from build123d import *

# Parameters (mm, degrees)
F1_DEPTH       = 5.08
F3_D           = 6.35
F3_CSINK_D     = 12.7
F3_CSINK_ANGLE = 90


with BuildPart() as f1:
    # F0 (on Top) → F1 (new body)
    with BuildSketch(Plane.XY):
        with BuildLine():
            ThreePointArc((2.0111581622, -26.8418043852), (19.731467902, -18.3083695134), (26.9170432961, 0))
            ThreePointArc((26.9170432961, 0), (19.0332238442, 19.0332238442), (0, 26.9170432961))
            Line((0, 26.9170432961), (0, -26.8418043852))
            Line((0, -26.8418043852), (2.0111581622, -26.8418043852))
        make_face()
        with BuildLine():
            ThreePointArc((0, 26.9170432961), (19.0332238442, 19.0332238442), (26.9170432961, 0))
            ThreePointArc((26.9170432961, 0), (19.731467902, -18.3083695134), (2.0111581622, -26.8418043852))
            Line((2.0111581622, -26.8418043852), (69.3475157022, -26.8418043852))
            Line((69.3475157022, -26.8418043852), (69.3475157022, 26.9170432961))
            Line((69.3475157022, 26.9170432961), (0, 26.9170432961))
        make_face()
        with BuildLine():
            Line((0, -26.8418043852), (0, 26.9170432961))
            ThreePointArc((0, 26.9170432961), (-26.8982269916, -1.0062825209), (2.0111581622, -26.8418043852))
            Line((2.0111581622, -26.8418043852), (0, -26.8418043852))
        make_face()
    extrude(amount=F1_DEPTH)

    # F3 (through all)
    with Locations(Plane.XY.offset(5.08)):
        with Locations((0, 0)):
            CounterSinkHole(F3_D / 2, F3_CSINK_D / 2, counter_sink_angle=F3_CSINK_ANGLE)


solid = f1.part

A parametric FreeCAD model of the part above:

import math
import FreeCAD as App
import Part
import Sketcher
Q = App.Units.Quantity

doc = App.newDocument("Part")
params = doc.addObject("Spreadsheet::Sheet", "Params")
for row, (alias, value) in enumerate([
    ("pad1_length", "0.2 in"),
    ("sketch2_diameter", "0.25 in"),
    ("hole_diameter", "0.25 in"),
    ("hole_csink_diameter", "0.5 in"),
], start=1):
    params.set(f"A{row}", alias)
    params.set(f"B{row}", "=" + value)
    params.setAlias(f"B{row}", alias)

body = doc.addObject("PartDesign::Body", "Body")

# Sketch on XY plane
sketch1 = body.newObject("Sketcher::SketchObject", "Sketch")
sketch1.AttachmentSupport = (doc.getObject("XY_Plane"), [""])
sketch1.MapMode = "FlatFace"
sketch1.addGeometry([
    Part.LineSegment(App.Vector(2, -27, 0), App.Vector(69, -27, 0)),
    Part.LineSegment(App.Vector(69, -27, 0), App.Vector(69, 27, 0)),
    Part.LineSegment(App.Vector(69, 27, 0), App.Vector(0, 27, 0)),
    Part.ArcOfCircle(Part.Circle(App.Vector(0, 0, 0), App.Vector(0, 0, 1), 27), math.radians(90), math.radians(274)),
], False)
sketch1.addConstraint([
    Sketcher.Constraint("Coincident", 0, 2, 1, 1),
    Sketcher.Constraint("Coincident", 1, 2, 2, 1),
    Sketcher.Constraint("Tangent", 2, 2, 3, 1),
    Sketcher.Constraint("Coincident", 3, 2, 0, 1),
    Sketcher.Constraint("Horizontal", 0),
    Sketcher.Constraint("Vertical", 1),
    Sketcher.Constraint("Horizontal", 2),
    Sketcher.Constraint("Coincident", 3, 3, -1, 1),
    Sketcher.Constraint("Radius", 3, Q("26.917043 mm")),
    Sketcher.Constraint("DistanceX", 0, 1, 0, 2, Q("67.336358 mm")),
    Sketcher.Constraint("DistanceX", 2, 2, 2, 1, Q("69.347516 mm")),
])
pad1 = body.newObject("PartDesign::Pad", "Pad")
pad1.Profile = sketch1
pad1.setExpression("Length", "Params.pad1_length")

# Sketch on XY plane
sketch2 = body.newObject("Sketcher::SketchObject", "Sketch001")
sketch2.AttachmentSupport = (doc.getObject("XY_Plane"), [""])
sketch2.MapMode = "FlatFace"
sketch2.AttachmentOffset = App.Placement(App.Vector(0, 0, 0.2 * 25.4), App.Rotation())
sketch2.addGeometry(Part.Circle(App.Vector(0, 0, 0), App.Vector(0, 0, 1), 3.2), False)
sketch2.addConstraint([
    Sketcher.Constraint("Coincident", 0, 3, -1, 1),
    Sketcher.Constraint("Diameter", 0, Q("0.25 in")),
])
sketch2.setExpression("Constraints[1]", "Params.sketch2_diameter")
doc.recompute()
hole = body.newObject("PartDesign::Hole", "Hole")
hole.Profile = sketch2
hole.ThreadType = "None"
hole.setExpression("Diameter", "Params.hole_diameter")
hole.DepthType = "ThroughAll"
hole.HoleCutType = "Countersink"
hole.setExpression("HoleCutDiameter", "Params.hole_csink_diameter")
hole.HoleCutCountersinkAngle = 90

doc.recompute()
